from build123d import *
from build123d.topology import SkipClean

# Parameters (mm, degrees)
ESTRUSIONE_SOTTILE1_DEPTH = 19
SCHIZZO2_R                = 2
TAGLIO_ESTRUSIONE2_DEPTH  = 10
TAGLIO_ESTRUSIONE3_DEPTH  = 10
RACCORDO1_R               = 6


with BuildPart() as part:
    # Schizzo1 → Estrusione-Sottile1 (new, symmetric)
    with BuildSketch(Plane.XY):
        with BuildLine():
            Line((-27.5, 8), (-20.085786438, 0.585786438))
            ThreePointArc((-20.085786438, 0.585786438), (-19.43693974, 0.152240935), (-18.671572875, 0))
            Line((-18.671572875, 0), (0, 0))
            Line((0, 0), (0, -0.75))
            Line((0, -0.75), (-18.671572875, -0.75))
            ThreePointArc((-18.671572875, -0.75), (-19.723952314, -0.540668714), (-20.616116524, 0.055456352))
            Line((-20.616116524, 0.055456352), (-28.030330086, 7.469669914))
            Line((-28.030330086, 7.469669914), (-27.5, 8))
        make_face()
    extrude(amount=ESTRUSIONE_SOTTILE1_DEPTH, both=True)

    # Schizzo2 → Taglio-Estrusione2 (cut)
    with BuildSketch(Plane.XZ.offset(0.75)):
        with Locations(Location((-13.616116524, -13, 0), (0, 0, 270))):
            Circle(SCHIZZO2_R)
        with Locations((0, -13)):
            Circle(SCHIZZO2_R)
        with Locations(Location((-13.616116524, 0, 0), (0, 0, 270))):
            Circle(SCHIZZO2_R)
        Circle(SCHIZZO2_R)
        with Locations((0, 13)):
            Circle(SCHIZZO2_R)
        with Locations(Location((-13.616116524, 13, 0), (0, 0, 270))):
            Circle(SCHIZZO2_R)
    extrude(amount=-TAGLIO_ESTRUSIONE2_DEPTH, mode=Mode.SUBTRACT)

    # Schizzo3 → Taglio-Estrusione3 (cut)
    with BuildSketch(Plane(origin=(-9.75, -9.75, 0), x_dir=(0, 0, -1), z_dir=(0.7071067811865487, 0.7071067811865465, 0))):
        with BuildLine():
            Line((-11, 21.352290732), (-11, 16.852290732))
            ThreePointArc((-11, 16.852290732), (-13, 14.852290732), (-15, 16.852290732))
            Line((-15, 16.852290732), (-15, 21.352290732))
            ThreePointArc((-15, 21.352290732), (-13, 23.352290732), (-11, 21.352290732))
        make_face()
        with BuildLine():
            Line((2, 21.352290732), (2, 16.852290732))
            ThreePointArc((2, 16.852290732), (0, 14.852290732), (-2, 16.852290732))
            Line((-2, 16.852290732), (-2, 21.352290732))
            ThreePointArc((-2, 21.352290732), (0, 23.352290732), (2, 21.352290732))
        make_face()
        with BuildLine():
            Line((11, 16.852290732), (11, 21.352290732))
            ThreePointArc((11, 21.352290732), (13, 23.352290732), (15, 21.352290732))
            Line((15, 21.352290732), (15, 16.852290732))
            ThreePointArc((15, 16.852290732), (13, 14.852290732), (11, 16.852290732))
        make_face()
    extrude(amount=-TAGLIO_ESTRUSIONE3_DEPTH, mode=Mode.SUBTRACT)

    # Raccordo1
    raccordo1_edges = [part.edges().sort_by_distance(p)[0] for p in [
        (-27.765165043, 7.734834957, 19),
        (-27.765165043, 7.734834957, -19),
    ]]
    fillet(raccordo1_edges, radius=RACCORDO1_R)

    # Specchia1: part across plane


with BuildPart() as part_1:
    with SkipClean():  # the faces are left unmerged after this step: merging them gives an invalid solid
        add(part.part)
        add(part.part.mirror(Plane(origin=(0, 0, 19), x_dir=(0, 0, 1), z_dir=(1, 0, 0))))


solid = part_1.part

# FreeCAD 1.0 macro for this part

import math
import FreeCAD as App
import Part
import Sketcher
Q = App.Units.Quantity


def edges_at(feature, points):
    """Names of the edges that pass closest to the given points."""
    edges = feature.Shape.Edges
    near = lambda p: min(range(len(edges)), key=lambda i: edges[i].distToShape(Part.Vertex(*p))[0])
    return sorted({f"Edge{near(p) + 1}" for p in points})

doc = App.newDocument("Part")
body = doc.addObject("PartDesign::Body", "Body")

# Sketch on XY plane
sketch1 = body.newObject("Sketcher::SketchObject", "Sketch")
sketch1.AttachmentSupport = (doc.getObject("XY_Plane"), [""])
sketch1.MapMode = "FlatFace"
sketch1.addGeometry([
    Part.LineSegment(App.Vector(-20.085786, 0.585786, 0), App.Vector(-27.5, 8, 0)),  # 0
    Part.LineSegment(App.Vector(-27.5, 8, 0), App.Vector(-28.03033, 7.46967, 0)),  # 1
    Part.LineSegment(App.Vector(-28.03033, 7.46967, 0), App.Vector(-20.616117, 0.055456, 0)),  # 2
    Part.ArcOfCircle(Part.Circle(App.Vector(-18.671573, 2, 0), App.Vector(0, 0, 1), 2.75), math.radians(-135), math.radians(-90)),  # 3
    Part.LineSegment(App.Vector(-18.671573, -0.75, 0), App.Vector(0, -0.75, 0)),  # 4
    Part.LineSegment(App.Vector(0, -0.75, 0), App.Vector(0, 0, 0)),  # 5
    Part.LineSegment(App.Vector(0, 0, 0), App.Vector(-18.671573, 0, 0)),  # 6
    Part.ArcOfCircle(Part.Circle(App.Vector(-18.671573, 2, 0), App.Vector(0, 0, 1), 2), math.radians(-135), math.radians(-90)),  # 7
], False)
sketch1.addConstraint([
    Sketcher.Constraint("Coincident", 0, 2, 1, 1),
    Sketcher.Constraint("Coincident", 1, 2, 2, 1),
    Sketcher.Constraint("Tangent", 2, 2, 3, 1),
    Sketcher.Constraint("Tangent", 3, 2, 4, 1),
    Sketcher.Constraint("Coincident", 4, 2, 5, 1),
    Sketcher.Constraint("Coincident", 5, 2, 6, 1),
    Sketcher.Constraint("Tangent", 6, 2, 7, 2),
    Sketcher.Constraint("Tangent", 7, 1, 0, 1),
    Sketcher.Constraint("Horizontal", 4),
    Sketcher.Constraint("Vertical", 5),
    Sketcher.Constraint("Horizontal", 6),
    Sketcher.Constraint("Coincident", 5, 2, -1, 1),
    Sketcher.Constraint("Coincident", 7, 3, 3, 3),
    Sketcher.Constraint("Perpendicular", 0, 1),
    Sketcher.Constraint("Perpendicular", 1, 2),
    Sketcher.Constraint("Radius", 7, 2.0),
    Sketcher.Constraint("Angle", 0, Q("135 deg")),
    Sketcher.Constraint("Radius", 3, 2.75),
    Sketcher.Constraint("DistanceY", -1, 1, 0, 2, 8.0),
    Sketcher.Constraint("DistanceX", 0, 2, -1, 1, 27.5),
])
pad1 = body.newObject("PartDesign::Pad", "Pad")
pad1.Profile = sketch1
pad1.Length = 38
pad1.Midplane = True

# Sketch on XZ plane
sketch2 = body.newObject("Sketcher::SketchObject", "Sketch001")
sketch2.AttachmentSupport = (doc.getObject("XZ_Plane"), [""])
sketch2.MapMode = "FlatFace"
sketch2.AttachmentOffset = App.Placement(App.Vector(0, 0, 0.75), App.Rotation())
sketch2.addGeometry([
    Part.Circle(App.Vector(-13.616117, -13, 0), App.Vector(0, 0, 1), 2),  # 0
    Part.Circle(App.Vector(0, -13, 0), App.Vector(0, 0, 1), 2),  # 1
    Part.Circle(App.Vector(-13.616117, 0, 0), App.Vector(0, 0, 1), 2),  # 2
    Part.Circle(App.Vector(0, 0, 0), App.Vector(0, 0, 1), 2),  # 3
    Part.Circle(App.Vector(0, 13, 0), App.Vector(0, 0, 1), 2),  # 4
    Part.Circle(App.Vector(-13.616117, 13, 0), App.Vector(0, 0, 1), 2),  # 5
], False)
sketch2.addConstraint([
    Sketcher.Constraint("Coincident", 3, 3, -1, 1),
    Sketcher.Constraint("Equal", 0, 1),
    Sketcher.Constraint("Equal", 1, 2),
    Sketcher.Constraint("Equal", 2, 3),
    Sketcher.Constraint("Equal", 3, 4),
    Sketcher.Constraint("Equal", 4, 5),
    Sketcher.Constraint("Symmetric", 1, 3, 4, 3, -1, 1),
    Sketcher.Constraint("Symmetric", 0, 3, 5, 3, -1),
    Sketcher.Constraint("PointOnObject", 1, 3, -2),
    Sketcher.Constraint("PointOnObject", 2, 3, -1),
    Sketcher.Constraint("Horizontal", 0, 3, 1, 3),
    Sketcher.Constraint("Vertical", 0, 3, 2, 3),
    Sketcher.Constraint("Diameter", 0, 4.0),
    Sketcher.Constraint("DistanceY", 0, 3, -1, 1, 13.0),
    Sketcher.Constraint("DistanceX", 0, 3, -1, 1, 13.616117),
])
pocket1 = body.newObject("PartDesign::Pocket", "Pocket")
pocket1.Profile = sketch2
pocket1.Length = 10

# Sketch on an angled plane
sketch3 = body.newObject("Sketcher::SketchObject", "Sketch002")
sketch3.Placement = App.Placement(App.Vector(-9.75, -9.75, 0), App.Rotation(App.Vector(0, 0, -1), App.Vector(-0.707106781, 0.707106781, 0), App.Vector(0.707106781, 0.707106781, 0), "ZXY"))
sketch3.addGeometry([
    Part.LineSegment(App.Vector(-11, 16.852291, 0), App.Vector(-11, 21.352291, 0)),  # 0
    Part.ArcOfCircle(Part.Circle(App.Vector(-13, 21.352291, 0), App.Vector(0, 0, 1), 2), math.radians(0), math.radians(180)),  # 1
    Part.LineSegment(App.Vector(-15, 21.352291, 0), App.Vector(-15, 16.852291, 0)),  # 2
    Part.ArcOfCircle(Part.Circle(App.Vector(-13, 16.852291, 0), App.Vector(0, 0, 1), 2), math.radians(180), math.radians(360)),  # 3
    Part.LineSegment(App.Vector(2, 16.852291, 0), App.Vector(2, 21.352291, 0)),  # 4
    Part.ArcOfCircle(Part.Circle(App.Vector(0, 21.352291, 0), App.Vector(0, 0, 1), 2), math.radians(0), math.radians(180)),  # 5
    Part.LineSegment(App.Vector(-2, 21.352291, 0), App.Vector(-2, 16.852291, 0)),  # 6
    Part.ArcOfCircle(Part.Circle(App.Vector(0, 16.852291, 0), App.Vector(0, 0, 1), 2), math.radians(180), math.radians(360)),  # 7
    Part.LineSegment(App.Vector(11, 21.352291, 0), App.Vector(11, 16.852291, 0)),  # 8
    Part.ArcOfCircle(Part.Circle(App.Vector(13, 16.852291, 0), App.Vector(0, 0, 1), 2), math.radians(180), math.radians(360)),  # 9
    Part.LineSegment(App.Vector(15, 16.852291, 0), App.Vector(15, 21.352291, 0)),  # 10
    Part.ArcOfCircle(Part.Circle(App.Vector(13, 21.352291, 0), App.Vector(0, 0, 1), 2), math.radians(0), math.radians(180)),  # 11
], False)
sketch3.addConstraint([
    Sketcher.Constraint("Tangent", 0, 2, 1, 1),
    Sketcher.Constraint("Tangent", 1, 2, 2, 1),
    Sketcher.Constraint("Tangent", 2, 2, 3, 1),
    Sketcher.Constraint("Tangent", 3, 2, 0, 1),
    Sketcher.Constraint("Tangent", 4, 2, 5, 1),
    Sketcher.Constraint("Tangent", 5, 2, 6, 1),
    Sketcher.Constraint("Tangent", 6, 2, 7, 1),
    Sketcher.Constraint("Tangent", 7, 2, 4, 1),
    Sketcher.Constraint("Tangent", 8, 2, 9, 1),
    Sketcher.Constraint("Tangent", 9, 2, 10, 1),
    Sketcher.Constraint("Tangent", 10, 2, 11, 1),
    Sketcher.Constraint("Tangent", 11, 2, 8, 1),
    Sketcher.Constraint("Vertical", 0),
    Sketcher.Constraint("Vertical", 2),
    Sketcher.Constraint("Vertical", 4),
    Sketcher.Constraint("Vertical", 6),
    Sketcher.Constraint("Vertical", 8),
    Sketcher.Constraint("Vertical", 10),
    Sketcher.Constraint("Equal", 3, 5),
    Sketcher.Constraint("Equal", 7, 9),
    Sketcher.Constraint("Symmetric", 3, 3, 9, 3, -2),
    Sketcher.Constraint("PointOnObject", 5, 3, -2),
    Sketcher.Constraint("Horizontal", 1, 3, 5, 3),
    Sketcher.Constraint("Horizontal", 3, 3, 7, 3),
    Sketcher.Constraint("Horizontal", 5, 3, 11, 3),
    Sketcher.Constraint("Radius", 1, 2.0),
    Sketcher.Constraint("DistanceY", 0, 1, 0, 2, 4.5),
    Sketcher.Constraint("DistanceX", 1, 3, -1, 1, 13.0),
    Sketcher.Constraint("DistanceY", -1, 1, 1, 3, 21.352291),
])
pocket2 = body.newObject("PartDesign::Pocket", "Pocket001")
pocket2.Profile = sketch3
pocket2.Length = 10
doc.recompute()

fillet = body.newObject("PartDesign::Fillet", "Fillet")
fillet.Base = (pocket2, edges_at(pocket2, [(-27.765, 7.735, 19), (-27.765, 7.735, -19)]))
fillet.Radius = 6
body2 = doc.addObject("PartDesign::Body", "Body001")
doc.recompute()

body2.BaseFeature = body
doc.recompute()

mirroring = doc.addObject("Part::Mirroring", "Mirroring")
mirroring.Source = body
mirroring.Base = App.Vector(0, 0, 19)
mirroring.Normal = App.Vector(1, 0, 0)
body3 = doc.addObject("PartDesign::Body", "Body002")
body3.BaseFeature = mirroring
boolean = body2.newObject("PartDesign::Boolean", "Boolean")
boolean.Type = "Fuse"
boolean.addObjects([body3])
doc.recompute()
mirroring.Visibility = False

doc.recompute()
